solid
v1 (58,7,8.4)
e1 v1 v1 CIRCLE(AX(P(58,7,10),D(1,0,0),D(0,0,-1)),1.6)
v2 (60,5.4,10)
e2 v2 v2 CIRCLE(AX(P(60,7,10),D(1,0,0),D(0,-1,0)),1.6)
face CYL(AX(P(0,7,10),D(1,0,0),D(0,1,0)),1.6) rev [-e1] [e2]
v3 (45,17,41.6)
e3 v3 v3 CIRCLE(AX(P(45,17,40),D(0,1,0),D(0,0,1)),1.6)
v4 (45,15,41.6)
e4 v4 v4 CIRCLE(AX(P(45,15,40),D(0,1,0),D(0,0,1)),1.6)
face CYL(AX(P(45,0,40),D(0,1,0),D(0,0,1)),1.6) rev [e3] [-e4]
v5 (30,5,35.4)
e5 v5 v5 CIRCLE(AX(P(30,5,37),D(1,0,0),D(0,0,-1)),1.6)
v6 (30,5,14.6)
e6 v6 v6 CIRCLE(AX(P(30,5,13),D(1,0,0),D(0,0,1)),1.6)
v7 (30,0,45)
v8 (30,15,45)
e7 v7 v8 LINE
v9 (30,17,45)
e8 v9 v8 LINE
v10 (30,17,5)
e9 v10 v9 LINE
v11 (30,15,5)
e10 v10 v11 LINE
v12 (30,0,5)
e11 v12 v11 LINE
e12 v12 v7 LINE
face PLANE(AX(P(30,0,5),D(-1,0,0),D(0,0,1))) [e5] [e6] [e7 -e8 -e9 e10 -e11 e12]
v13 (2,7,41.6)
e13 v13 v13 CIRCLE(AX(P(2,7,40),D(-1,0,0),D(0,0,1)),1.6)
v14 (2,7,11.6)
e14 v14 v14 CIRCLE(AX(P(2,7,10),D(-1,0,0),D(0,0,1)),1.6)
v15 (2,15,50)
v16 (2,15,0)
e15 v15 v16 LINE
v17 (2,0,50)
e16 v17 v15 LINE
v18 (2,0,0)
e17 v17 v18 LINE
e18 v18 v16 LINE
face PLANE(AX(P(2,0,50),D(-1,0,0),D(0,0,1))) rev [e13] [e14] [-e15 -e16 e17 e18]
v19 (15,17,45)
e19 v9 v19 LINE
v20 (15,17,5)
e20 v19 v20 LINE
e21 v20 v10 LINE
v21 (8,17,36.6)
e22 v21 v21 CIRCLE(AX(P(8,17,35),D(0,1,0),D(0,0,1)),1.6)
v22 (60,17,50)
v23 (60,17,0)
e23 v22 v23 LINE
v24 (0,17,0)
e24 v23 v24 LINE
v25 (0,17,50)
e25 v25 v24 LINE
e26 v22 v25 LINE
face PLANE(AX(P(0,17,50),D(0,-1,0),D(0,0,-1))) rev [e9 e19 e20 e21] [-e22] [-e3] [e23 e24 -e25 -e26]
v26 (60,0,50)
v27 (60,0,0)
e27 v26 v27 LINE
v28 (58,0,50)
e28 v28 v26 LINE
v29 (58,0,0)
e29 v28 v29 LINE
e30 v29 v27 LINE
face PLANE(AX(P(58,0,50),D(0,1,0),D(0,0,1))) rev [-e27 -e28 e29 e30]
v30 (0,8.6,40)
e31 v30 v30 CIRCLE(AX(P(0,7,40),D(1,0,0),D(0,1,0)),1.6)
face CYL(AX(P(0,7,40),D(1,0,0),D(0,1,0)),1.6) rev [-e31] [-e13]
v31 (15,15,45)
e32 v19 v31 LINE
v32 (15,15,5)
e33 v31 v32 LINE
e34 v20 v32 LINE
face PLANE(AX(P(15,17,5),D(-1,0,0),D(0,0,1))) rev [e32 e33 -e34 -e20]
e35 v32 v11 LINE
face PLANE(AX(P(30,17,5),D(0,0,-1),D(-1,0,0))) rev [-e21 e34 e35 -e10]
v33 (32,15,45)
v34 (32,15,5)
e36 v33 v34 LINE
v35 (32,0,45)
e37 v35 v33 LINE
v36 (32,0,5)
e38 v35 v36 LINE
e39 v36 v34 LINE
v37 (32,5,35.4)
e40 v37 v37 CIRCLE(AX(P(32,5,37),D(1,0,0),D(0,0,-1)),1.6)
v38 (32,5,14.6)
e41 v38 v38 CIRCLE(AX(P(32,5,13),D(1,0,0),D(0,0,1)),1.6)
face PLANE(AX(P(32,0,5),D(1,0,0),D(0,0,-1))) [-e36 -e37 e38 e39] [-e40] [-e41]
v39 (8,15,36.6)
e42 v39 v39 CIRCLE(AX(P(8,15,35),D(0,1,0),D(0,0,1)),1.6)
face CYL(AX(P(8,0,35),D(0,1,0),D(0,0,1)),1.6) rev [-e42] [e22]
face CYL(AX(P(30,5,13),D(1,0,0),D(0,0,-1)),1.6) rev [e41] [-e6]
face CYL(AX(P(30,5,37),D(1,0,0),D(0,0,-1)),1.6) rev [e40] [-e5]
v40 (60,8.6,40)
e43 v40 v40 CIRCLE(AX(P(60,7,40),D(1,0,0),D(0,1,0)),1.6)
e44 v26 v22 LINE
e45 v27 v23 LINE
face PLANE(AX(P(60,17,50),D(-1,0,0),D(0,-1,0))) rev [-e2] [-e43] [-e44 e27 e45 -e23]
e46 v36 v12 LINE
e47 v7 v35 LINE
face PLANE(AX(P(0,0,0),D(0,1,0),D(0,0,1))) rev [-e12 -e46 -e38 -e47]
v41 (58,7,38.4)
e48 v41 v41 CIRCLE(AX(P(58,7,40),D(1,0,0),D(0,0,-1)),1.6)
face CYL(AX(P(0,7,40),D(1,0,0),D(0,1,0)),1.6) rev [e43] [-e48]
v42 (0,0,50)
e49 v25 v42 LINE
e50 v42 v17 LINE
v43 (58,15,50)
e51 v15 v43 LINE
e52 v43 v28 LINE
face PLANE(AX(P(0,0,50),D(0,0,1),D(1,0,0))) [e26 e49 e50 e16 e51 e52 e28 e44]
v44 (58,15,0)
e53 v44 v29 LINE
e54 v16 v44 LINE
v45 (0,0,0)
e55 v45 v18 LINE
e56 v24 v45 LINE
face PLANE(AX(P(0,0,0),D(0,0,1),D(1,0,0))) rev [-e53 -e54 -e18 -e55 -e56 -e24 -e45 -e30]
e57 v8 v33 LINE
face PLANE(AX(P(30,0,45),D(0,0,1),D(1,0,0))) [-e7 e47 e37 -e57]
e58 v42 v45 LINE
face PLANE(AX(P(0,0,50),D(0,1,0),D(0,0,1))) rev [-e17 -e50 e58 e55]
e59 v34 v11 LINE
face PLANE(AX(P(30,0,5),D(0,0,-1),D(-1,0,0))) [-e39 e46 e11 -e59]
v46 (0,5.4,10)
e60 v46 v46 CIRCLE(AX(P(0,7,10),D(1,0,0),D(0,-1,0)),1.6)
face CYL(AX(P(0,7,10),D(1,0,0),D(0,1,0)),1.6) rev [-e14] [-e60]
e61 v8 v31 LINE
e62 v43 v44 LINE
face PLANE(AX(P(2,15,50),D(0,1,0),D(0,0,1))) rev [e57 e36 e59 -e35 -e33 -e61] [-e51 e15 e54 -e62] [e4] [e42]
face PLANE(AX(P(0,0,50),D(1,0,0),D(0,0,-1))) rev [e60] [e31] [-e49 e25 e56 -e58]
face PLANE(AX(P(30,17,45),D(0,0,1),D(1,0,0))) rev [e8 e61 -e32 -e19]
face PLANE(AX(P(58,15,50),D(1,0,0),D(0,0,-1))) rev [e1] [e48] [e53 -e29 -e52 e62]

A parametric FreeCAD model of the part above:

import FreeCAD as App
import Part
import Sketcher
from FreeCAD import Vector

doc = App.newDocument("Part")
params = doc.addObject("Spreadsheet::Sheet", "Params")
for row, (alias, value) in enumerate([
    ("sketch1_width", "2 mm"),
    ("sketch1_width2", "56 mm"),
    ("sketch1_height", "17 mm"),
    ("sketch1_height2", "15 mm"),
    ("pad1_length", "50 mm"),
    ("sketch2_diameter", "3.2 mm"),
    ("sketch3_width", "2 mm"),
    ("sketch3_height", "40 mm"),
    ("pad2_length", "17 mm"),
    ("sketch4_diameter", "3.2 mm"),
    ("pocket2_length", "2 mm"),
    ("sketch5_diameter", "3.2 mm"),
    ("sketch6_width", "15 mm"),
    ("sketch6_height", "40 mm"),
    ("pocket4_length", "2 mm"),
], start=1):
    params.set(f"A{row}", alias)
    params.set(f"B{row}", "=" + value)
    params.setAlias(f"B{row}", alias)

body = doc.addObject("PartDesign::Body", "Body")

# Sketch on XY plane
sketch1 = body.newObject("Sketcher::SketchObject", "Sketch")
sketch1.AttachmentSupport = (doc.getObject("XY_Plane"), [""])
sketch1.MapMode = "FlatFace"
sketch1.addGeometry(Part.LineSegment(Vector(0, 17, 0), Vector(0, 0, 0)), False)
sketch1.addGeometry(Part.LineSegment(Vector(0, 0, 0), Vector(2, 0, 0)), False)
sketch1.addGeometry(Part.LineSegment(Vector(2, 0, 0), Vector(2, 15, 0)), False)
sketch1.addGeometry(Part.LineSegment(Vector(2, 15, 0), Vector(58, 15, 0)), False)
sketch1.addGeometry(Part.LineSegment(Vector(58, 15, 0), Vector(58, 0, 0)), False)
sketch1.addGeometry(Part.LineSegment(Vector(58, 0, 0), Vector(60, 0, 0)), False)
sketch1.addGeometry(Part.LineSegment(Vector(60, 0, 0), Vector(60, 17, 0)), False)
sketch1.addGeometry(Part.LineSegment(Vector(60, 17, 0), Vector(0, 17, 0)), False)
sketch1.addConstraint(Sketcher.Constraint("Coincident", 0, 2, 1, 1))
sketch1.addConstraint(Sketcher.Constraint("Coincident", 1, 2, 2, 1))
sketch1.addConstraint(Sketcher.Constraint("Coincident", 2, 2, 3, 1))
sketch1.addConstraint(Sketcher.Constraint("Coincident", 3, 2, 4, 1))
sketch1.addConstraint(Sketcher.Constraint("Coincident", 4, 2, 5, 1))
sketch1.addConstraint(Sketcher.Constraint("Coincident", 5, 2, 6, 1))
sketch1.addConstraint(Sketcher.Constraint("Coincident", 6, 2, 7, 1))
sketch1.addConstraint(Sketcher.Constraint("Coincident", 7, 2, 0, 1))
sketch1.addConstraint(Sketcher.Constraint("Vertical", 0))
sketch1.addConstraint(Sketcher.Constraint("Horizontal", 1))
sketch1.addConstraint(Sketcher.Constraint("Vertical", 2))
sketch1.addConstraint(Sketcher.Constraint("Horizontal", 3))
sketch1.addConstraint(Sketcher.Constraint("Vertical", 4))
sketch1.addConstraint(Sketcher.Constraint("Horizontal", 5))
sketch1.addConstraint(Sketcher.Constraint("Vertical", 6))
sketch1.addConstraint(Sketcher.Constraint("Horizontal", 7))
sketch1.addConstraint(Sketcher.Constraint("Coincident", 0, 2, -1, 1))
sketch1.addConstraint(Sketcher.Constraint("PointOnObject", 4, 2, -1))
sketch1.addConstraint(Sketcher.Constraint("Equal", 1, 5))
sketch1.addConstraint(Sketcher.Constraint("DistanceX", 1, 1, 1, 2, 2.0))
sketch1.addConstraint(Sketcher.Constraint("DistanceX", 3, 1, 3, 2, 56.0))
sketch1.addConstraint(Sketcher.Constraint("DistanceY", 0, 2, 0, 1, 17.0))
sketch1.addConstraint(Sketcher.Constraint("DistanceY", 2, 1, 2, 2, 15.0))
sketch1.setExpression("Constraints[19]", "Params.sketch1_width")
sketch1.setExpression("Constraints[20]", "Params.sketch1_width2")
sketch1.setExpression("Constraints[21]", "Params.sketch1_height")
sketch1.setExpression("Constraints[22]", "Params.sketch1_height2")
pad1 = body.newObject("PartDesign::Pad", "Pad")
pad1.Profile = sketch1
pad1.setExpression("Length", "Params.pad1_length")

# Sketch on YZ plane
sketch2 = body.newObject("Sketcher::SketchObject", "Sketch001")
sketch2.AttachmentSupport = (doc.getObject("YZ_Plane"), [""])
sketch2.MapMode = "FlatFace"
sketch2.AttachmentOffset = App.Placement(Vector(0, 0, 60), App.Rotation())
sketch2.addGeometry(Part.Circle(Vector(7, 40, 0), Vector(0, 0, 1), 1.6), False)
sketch2.addGeometry(Part.Circle(Vector(7, 10, 0), Vector(0, 0, 1), 1.6), False)
sketch2.addConstraint(Sketcher.Constraint("Equal", 0, 1))
sketch2.addConstraint(Sketcher.Constraint("Vertical", 0, 3, 1, 3))
sketch2.addConstraint(Sketcher.Constraint("Diameter", 0, 3.2))
sketch2.addConstraint(Sketcher.Constraint("DistanceX", -1, 1, 0, 3, 7.0))
sketch2.addConstraint(Sketcher.Constraint("DistanceY", -1, 1, 0, 3, 40.0))
sketch2.addConstraint(Sketcher.Constraint("DistanceY", -1, 1, 1, 3, 10.0))
sketch2.setExpression("Constraints[2]", "Params.sketch2_diameter")
pocket1 = body.newObject("PartDesign::Pocket", "Pocket")
pocket1.Profile = sketch2
pocket1.Type = "ThroughAll"

# Sketch on XZ plane
sketch3 = body.newObject("Sketcher::SketchObject", "Sketch002")
sketch3.AttachmentSupport = (doc.getObject("XZ_Plane"), [""])
sketch3.MapMode = "FlatFace"
sketch3.AttachmentOffset = App.Placement(Vector(0, 0, -17), App.Rotation())
sketch3.addGeometry(Part.LineSegment(Vector(30, 5, 0), Vector(30, 45, 0)), False)
sketch3.addGeometry(Part.LineSegment(Vector(30, 45, 0), Vector(32, 45, 0)), False)
sketch3.addGeometry(Part.LineSegment(Vector(32, 45, 0), Vector(32, 5, 0)), False)
sketch3.addGeometry(Part.LineSegment(Vector(32, 5, 0), Vector(30, 5, 0)), False)
sketch3.addConstraint(Sketcher.Constraint("Coincident", 0, 2, 1, 1))
sketch3.addConstraint(Sketcher.Constraint("Coincident", 1, 2, 2, 1))
sketch3.addConstraint(Sketcher.Constraint("Coincident", 2, 2, 3, 1))
sketch3.addConstraint(Sketcher.Constraint("Coincident", 3, 2, 0, 1))
sketch3.addConstraint(Sketcher.Constraint("Vertical", 0))
sketch3.addConstraint(Sketcher.Constraint("Horizontal", 1))
sketch3.addConstraint(Sketcher.Constraint("Vertical", 2))
sketch3.addConstraint(Sketcher.Constraint("Horizontal", 3))
sketch3.addConstraint(Sketcher.Constraint("DistanceX", 1, 1, 1, 2, 2.0))
sketch3.addConstraint(Sketcher.Constraint("DistanceY", 0, 1, 0, 2, 40.0))
sketch3.addConstraint(Sketcher.Constraint("DistanceX", -1, 1, 0, 2, 30.0))
sketch3.addConstraint(Sketcher.Constraint("DistanceY", -1, 1, 0, 2, 45.0))
sketch3.setExpression("Constraints[8]", "Params.sketch3_width")
sketch3.setExpression("Constraints[9]", "Params.sketch3_height")
pad2 = body.newObject("PartDesign::Pad", "Pad001")
pad2.Profile = sketch3
pad2.setExpression("Length", "Params.pad2_length")

# Sketch on YZ plane
sketch4 = body.newObject("Sketcher::SketchObject", "Sketch003")
sketch4.AttachmentSupport = (doc.getObject("YZ_Plane"), [""])
sketch4.MapMode = "FlatFace"
sketch4.AttachmentOffset = App.Placement(Vector(0, 0, 32), App.Rotation())
sketch4.addGeometry(Part.Circle(Vector(5, 37, 0), Vector(0, 0, 1), 1.6), False)
sketch4.addGeometry(Part.Circle(Vector(5, 13, 0), Vector(0, 0, 1), 1.6), False)
sketch4.addConstraint(Sketcher.Constraint("Equal", 0, 1))
sketch4.addConstraint(Sketcher.Constraint("Vertical", 0, 3, 1, 3))
sketch4.addConstraint(Sketcher.Constraint("Diameter", 0, 3.2))
sketch4.addConstraint(Sketcher.Constraint("DistanceX", -1, 1, 0, 3, 5.0))
sketch4.addConstraint(Sketcher.Constraint("DistanceY", -1, 1, 0, 3, 37.0))
sketch4.addConstraint(Sketcher.Constraint("DistanceY", -1, 1, 1, 3, 13.0))
sketch4.setExpression("Constraints[2]", "Params.sketch4_diameter")
pocket2 = body.newObject("PartDesign::Pocket", "Pocket001")
pocket2.Profile = sketch4
pocket2.setExpression("Length", "Params.pocket2_length")

# Sketch on XZ plane
sketch5 = body.newObject("Sketcher::SketchObject", "Sketch004")
sketch5.AttachmentSupport = (doc.getObject("XZ_Plane"), [""])
sketch5.MapMode = "FlatFace"
sketch5.AttachmentOffset = App.Placement(Vector(0, 0, -17), App.Rotation())
sketch5.addGeometry(Part.Circle(Vector(45, 40, 0), Vector(0, 0, 1), 1.6), False)
sketch5.addGeometry(Part.Circle(Vector(8, 35, 0), Vector(0, 0, 1), 1.6), False)
sketch5.addConstraint(Sketcher.Constraint("Equal", 0, 1))
sketch5.addConstraint(Sketcher.Constraint("Diameter", 0, 3.2))
sketch5.addConstraint(Sketcher.Constraint("DistanceX", -1, 1, 0, 3, 45.0))
sketch5.addConstraint(Sketcher.Constraint("DistanceY", -1, 1, 0, 3, 40.0))
sketch5.addConstraint(Sketcher.Constraint("DistanceX", -1, 1, 1, 3, 8.0))
sketch5.addConstraint(Sketcher.Constraint("DistanceY", -1, 1, 1, 3, 35.0))
sketch5.setExpression("Constraints[1]", "Params.sketch5_diameter")
pocket3 = body.newObject("PartDesign::Pocket", "Pocket002")
pocket3.Profile = sketch5
pocket3.Type = "ThroughAll"
pocket3.Reversed = True

# Sketch on XZ plane
sketch6 = body.newObject("Sketcher::SketchObject", "Sketch005")
sketch6.AttachmentSupport = (doc.getObject("XZ_Plane"), [""])
sketch6.MapMode = "FlatFace"
sketch6.AttachmentOffset = App.Placement(Vector(0, 0, -15), App.Rotation())
sketch6.addGeometry(Part.LineSegment(Vector(15, 45, 0), Vector(15, 5, 0)), False)
sketch6.addGeometry(Part.LineSegment(Vector(15, 5, 0), Vector(30, 5, 0)), False)
sketch6.addGeometry(Part.LineSegment(Vector(30, 5, 0), Vector(30, 45, 0)), False)
sketch6.addGeometry(Part.LineSegment(Vector(30, 45, 0), Vector(15, 45, 0)), False)
sketch6.addConstraint(Sketcher.Constraint("Coincident", 0, 2, 1, 1))
sketch6.addConstraint(Sketcher.Constraint("Coincident", 1, 2, 2, 1))
sketch6.addConstraint(Sketcher.Constraint("Coincident", 2, 2, 3, 1))
sketch6.addConstraint(Sketcher.Constraint("Coincident", 3, 2, 0, 1))
sketch6.addConstraint(Sketcher.Constraint("Vertical", 0))
sketch6.addConstraint(Sketcher.Constraint("Horizontal", 1))
sketch6.addConstraint(Sketcher.Constraint("Vertical", 2))
sketch6.addConstraint(Sketcher.Constraint("Horizontal", 3))
sketch6.addConstraint(Sketcher.Constraint("DistanceX", 1, 1, 1, 2, 15.0))
sketch6.addConstraint(Sketcher.Constraint("DistanceY", 0, 2, 0, 1, 40.0))
sketch6.addConstraint(Sketcher.Constraint("DistanceX", -1, 1, 0, 2, 15.0))
sketch6.addConstraint(Sketcher.Constraint("DistanceY", -1, 1, 0, 2, 5.0))
sketch6.setExpression("Constraints[8]", "Params.sketch6_width")
sketch6.setExpression("Constraints[9]", "Params.sketch6_height")
pocket4 = body.newObject("PartDesign::Pocket", "Pocket003")
pocket4.Profile = sketch6
pocket4.setExpression("Length", "Params.pocket4_length")

doc.recompute()
